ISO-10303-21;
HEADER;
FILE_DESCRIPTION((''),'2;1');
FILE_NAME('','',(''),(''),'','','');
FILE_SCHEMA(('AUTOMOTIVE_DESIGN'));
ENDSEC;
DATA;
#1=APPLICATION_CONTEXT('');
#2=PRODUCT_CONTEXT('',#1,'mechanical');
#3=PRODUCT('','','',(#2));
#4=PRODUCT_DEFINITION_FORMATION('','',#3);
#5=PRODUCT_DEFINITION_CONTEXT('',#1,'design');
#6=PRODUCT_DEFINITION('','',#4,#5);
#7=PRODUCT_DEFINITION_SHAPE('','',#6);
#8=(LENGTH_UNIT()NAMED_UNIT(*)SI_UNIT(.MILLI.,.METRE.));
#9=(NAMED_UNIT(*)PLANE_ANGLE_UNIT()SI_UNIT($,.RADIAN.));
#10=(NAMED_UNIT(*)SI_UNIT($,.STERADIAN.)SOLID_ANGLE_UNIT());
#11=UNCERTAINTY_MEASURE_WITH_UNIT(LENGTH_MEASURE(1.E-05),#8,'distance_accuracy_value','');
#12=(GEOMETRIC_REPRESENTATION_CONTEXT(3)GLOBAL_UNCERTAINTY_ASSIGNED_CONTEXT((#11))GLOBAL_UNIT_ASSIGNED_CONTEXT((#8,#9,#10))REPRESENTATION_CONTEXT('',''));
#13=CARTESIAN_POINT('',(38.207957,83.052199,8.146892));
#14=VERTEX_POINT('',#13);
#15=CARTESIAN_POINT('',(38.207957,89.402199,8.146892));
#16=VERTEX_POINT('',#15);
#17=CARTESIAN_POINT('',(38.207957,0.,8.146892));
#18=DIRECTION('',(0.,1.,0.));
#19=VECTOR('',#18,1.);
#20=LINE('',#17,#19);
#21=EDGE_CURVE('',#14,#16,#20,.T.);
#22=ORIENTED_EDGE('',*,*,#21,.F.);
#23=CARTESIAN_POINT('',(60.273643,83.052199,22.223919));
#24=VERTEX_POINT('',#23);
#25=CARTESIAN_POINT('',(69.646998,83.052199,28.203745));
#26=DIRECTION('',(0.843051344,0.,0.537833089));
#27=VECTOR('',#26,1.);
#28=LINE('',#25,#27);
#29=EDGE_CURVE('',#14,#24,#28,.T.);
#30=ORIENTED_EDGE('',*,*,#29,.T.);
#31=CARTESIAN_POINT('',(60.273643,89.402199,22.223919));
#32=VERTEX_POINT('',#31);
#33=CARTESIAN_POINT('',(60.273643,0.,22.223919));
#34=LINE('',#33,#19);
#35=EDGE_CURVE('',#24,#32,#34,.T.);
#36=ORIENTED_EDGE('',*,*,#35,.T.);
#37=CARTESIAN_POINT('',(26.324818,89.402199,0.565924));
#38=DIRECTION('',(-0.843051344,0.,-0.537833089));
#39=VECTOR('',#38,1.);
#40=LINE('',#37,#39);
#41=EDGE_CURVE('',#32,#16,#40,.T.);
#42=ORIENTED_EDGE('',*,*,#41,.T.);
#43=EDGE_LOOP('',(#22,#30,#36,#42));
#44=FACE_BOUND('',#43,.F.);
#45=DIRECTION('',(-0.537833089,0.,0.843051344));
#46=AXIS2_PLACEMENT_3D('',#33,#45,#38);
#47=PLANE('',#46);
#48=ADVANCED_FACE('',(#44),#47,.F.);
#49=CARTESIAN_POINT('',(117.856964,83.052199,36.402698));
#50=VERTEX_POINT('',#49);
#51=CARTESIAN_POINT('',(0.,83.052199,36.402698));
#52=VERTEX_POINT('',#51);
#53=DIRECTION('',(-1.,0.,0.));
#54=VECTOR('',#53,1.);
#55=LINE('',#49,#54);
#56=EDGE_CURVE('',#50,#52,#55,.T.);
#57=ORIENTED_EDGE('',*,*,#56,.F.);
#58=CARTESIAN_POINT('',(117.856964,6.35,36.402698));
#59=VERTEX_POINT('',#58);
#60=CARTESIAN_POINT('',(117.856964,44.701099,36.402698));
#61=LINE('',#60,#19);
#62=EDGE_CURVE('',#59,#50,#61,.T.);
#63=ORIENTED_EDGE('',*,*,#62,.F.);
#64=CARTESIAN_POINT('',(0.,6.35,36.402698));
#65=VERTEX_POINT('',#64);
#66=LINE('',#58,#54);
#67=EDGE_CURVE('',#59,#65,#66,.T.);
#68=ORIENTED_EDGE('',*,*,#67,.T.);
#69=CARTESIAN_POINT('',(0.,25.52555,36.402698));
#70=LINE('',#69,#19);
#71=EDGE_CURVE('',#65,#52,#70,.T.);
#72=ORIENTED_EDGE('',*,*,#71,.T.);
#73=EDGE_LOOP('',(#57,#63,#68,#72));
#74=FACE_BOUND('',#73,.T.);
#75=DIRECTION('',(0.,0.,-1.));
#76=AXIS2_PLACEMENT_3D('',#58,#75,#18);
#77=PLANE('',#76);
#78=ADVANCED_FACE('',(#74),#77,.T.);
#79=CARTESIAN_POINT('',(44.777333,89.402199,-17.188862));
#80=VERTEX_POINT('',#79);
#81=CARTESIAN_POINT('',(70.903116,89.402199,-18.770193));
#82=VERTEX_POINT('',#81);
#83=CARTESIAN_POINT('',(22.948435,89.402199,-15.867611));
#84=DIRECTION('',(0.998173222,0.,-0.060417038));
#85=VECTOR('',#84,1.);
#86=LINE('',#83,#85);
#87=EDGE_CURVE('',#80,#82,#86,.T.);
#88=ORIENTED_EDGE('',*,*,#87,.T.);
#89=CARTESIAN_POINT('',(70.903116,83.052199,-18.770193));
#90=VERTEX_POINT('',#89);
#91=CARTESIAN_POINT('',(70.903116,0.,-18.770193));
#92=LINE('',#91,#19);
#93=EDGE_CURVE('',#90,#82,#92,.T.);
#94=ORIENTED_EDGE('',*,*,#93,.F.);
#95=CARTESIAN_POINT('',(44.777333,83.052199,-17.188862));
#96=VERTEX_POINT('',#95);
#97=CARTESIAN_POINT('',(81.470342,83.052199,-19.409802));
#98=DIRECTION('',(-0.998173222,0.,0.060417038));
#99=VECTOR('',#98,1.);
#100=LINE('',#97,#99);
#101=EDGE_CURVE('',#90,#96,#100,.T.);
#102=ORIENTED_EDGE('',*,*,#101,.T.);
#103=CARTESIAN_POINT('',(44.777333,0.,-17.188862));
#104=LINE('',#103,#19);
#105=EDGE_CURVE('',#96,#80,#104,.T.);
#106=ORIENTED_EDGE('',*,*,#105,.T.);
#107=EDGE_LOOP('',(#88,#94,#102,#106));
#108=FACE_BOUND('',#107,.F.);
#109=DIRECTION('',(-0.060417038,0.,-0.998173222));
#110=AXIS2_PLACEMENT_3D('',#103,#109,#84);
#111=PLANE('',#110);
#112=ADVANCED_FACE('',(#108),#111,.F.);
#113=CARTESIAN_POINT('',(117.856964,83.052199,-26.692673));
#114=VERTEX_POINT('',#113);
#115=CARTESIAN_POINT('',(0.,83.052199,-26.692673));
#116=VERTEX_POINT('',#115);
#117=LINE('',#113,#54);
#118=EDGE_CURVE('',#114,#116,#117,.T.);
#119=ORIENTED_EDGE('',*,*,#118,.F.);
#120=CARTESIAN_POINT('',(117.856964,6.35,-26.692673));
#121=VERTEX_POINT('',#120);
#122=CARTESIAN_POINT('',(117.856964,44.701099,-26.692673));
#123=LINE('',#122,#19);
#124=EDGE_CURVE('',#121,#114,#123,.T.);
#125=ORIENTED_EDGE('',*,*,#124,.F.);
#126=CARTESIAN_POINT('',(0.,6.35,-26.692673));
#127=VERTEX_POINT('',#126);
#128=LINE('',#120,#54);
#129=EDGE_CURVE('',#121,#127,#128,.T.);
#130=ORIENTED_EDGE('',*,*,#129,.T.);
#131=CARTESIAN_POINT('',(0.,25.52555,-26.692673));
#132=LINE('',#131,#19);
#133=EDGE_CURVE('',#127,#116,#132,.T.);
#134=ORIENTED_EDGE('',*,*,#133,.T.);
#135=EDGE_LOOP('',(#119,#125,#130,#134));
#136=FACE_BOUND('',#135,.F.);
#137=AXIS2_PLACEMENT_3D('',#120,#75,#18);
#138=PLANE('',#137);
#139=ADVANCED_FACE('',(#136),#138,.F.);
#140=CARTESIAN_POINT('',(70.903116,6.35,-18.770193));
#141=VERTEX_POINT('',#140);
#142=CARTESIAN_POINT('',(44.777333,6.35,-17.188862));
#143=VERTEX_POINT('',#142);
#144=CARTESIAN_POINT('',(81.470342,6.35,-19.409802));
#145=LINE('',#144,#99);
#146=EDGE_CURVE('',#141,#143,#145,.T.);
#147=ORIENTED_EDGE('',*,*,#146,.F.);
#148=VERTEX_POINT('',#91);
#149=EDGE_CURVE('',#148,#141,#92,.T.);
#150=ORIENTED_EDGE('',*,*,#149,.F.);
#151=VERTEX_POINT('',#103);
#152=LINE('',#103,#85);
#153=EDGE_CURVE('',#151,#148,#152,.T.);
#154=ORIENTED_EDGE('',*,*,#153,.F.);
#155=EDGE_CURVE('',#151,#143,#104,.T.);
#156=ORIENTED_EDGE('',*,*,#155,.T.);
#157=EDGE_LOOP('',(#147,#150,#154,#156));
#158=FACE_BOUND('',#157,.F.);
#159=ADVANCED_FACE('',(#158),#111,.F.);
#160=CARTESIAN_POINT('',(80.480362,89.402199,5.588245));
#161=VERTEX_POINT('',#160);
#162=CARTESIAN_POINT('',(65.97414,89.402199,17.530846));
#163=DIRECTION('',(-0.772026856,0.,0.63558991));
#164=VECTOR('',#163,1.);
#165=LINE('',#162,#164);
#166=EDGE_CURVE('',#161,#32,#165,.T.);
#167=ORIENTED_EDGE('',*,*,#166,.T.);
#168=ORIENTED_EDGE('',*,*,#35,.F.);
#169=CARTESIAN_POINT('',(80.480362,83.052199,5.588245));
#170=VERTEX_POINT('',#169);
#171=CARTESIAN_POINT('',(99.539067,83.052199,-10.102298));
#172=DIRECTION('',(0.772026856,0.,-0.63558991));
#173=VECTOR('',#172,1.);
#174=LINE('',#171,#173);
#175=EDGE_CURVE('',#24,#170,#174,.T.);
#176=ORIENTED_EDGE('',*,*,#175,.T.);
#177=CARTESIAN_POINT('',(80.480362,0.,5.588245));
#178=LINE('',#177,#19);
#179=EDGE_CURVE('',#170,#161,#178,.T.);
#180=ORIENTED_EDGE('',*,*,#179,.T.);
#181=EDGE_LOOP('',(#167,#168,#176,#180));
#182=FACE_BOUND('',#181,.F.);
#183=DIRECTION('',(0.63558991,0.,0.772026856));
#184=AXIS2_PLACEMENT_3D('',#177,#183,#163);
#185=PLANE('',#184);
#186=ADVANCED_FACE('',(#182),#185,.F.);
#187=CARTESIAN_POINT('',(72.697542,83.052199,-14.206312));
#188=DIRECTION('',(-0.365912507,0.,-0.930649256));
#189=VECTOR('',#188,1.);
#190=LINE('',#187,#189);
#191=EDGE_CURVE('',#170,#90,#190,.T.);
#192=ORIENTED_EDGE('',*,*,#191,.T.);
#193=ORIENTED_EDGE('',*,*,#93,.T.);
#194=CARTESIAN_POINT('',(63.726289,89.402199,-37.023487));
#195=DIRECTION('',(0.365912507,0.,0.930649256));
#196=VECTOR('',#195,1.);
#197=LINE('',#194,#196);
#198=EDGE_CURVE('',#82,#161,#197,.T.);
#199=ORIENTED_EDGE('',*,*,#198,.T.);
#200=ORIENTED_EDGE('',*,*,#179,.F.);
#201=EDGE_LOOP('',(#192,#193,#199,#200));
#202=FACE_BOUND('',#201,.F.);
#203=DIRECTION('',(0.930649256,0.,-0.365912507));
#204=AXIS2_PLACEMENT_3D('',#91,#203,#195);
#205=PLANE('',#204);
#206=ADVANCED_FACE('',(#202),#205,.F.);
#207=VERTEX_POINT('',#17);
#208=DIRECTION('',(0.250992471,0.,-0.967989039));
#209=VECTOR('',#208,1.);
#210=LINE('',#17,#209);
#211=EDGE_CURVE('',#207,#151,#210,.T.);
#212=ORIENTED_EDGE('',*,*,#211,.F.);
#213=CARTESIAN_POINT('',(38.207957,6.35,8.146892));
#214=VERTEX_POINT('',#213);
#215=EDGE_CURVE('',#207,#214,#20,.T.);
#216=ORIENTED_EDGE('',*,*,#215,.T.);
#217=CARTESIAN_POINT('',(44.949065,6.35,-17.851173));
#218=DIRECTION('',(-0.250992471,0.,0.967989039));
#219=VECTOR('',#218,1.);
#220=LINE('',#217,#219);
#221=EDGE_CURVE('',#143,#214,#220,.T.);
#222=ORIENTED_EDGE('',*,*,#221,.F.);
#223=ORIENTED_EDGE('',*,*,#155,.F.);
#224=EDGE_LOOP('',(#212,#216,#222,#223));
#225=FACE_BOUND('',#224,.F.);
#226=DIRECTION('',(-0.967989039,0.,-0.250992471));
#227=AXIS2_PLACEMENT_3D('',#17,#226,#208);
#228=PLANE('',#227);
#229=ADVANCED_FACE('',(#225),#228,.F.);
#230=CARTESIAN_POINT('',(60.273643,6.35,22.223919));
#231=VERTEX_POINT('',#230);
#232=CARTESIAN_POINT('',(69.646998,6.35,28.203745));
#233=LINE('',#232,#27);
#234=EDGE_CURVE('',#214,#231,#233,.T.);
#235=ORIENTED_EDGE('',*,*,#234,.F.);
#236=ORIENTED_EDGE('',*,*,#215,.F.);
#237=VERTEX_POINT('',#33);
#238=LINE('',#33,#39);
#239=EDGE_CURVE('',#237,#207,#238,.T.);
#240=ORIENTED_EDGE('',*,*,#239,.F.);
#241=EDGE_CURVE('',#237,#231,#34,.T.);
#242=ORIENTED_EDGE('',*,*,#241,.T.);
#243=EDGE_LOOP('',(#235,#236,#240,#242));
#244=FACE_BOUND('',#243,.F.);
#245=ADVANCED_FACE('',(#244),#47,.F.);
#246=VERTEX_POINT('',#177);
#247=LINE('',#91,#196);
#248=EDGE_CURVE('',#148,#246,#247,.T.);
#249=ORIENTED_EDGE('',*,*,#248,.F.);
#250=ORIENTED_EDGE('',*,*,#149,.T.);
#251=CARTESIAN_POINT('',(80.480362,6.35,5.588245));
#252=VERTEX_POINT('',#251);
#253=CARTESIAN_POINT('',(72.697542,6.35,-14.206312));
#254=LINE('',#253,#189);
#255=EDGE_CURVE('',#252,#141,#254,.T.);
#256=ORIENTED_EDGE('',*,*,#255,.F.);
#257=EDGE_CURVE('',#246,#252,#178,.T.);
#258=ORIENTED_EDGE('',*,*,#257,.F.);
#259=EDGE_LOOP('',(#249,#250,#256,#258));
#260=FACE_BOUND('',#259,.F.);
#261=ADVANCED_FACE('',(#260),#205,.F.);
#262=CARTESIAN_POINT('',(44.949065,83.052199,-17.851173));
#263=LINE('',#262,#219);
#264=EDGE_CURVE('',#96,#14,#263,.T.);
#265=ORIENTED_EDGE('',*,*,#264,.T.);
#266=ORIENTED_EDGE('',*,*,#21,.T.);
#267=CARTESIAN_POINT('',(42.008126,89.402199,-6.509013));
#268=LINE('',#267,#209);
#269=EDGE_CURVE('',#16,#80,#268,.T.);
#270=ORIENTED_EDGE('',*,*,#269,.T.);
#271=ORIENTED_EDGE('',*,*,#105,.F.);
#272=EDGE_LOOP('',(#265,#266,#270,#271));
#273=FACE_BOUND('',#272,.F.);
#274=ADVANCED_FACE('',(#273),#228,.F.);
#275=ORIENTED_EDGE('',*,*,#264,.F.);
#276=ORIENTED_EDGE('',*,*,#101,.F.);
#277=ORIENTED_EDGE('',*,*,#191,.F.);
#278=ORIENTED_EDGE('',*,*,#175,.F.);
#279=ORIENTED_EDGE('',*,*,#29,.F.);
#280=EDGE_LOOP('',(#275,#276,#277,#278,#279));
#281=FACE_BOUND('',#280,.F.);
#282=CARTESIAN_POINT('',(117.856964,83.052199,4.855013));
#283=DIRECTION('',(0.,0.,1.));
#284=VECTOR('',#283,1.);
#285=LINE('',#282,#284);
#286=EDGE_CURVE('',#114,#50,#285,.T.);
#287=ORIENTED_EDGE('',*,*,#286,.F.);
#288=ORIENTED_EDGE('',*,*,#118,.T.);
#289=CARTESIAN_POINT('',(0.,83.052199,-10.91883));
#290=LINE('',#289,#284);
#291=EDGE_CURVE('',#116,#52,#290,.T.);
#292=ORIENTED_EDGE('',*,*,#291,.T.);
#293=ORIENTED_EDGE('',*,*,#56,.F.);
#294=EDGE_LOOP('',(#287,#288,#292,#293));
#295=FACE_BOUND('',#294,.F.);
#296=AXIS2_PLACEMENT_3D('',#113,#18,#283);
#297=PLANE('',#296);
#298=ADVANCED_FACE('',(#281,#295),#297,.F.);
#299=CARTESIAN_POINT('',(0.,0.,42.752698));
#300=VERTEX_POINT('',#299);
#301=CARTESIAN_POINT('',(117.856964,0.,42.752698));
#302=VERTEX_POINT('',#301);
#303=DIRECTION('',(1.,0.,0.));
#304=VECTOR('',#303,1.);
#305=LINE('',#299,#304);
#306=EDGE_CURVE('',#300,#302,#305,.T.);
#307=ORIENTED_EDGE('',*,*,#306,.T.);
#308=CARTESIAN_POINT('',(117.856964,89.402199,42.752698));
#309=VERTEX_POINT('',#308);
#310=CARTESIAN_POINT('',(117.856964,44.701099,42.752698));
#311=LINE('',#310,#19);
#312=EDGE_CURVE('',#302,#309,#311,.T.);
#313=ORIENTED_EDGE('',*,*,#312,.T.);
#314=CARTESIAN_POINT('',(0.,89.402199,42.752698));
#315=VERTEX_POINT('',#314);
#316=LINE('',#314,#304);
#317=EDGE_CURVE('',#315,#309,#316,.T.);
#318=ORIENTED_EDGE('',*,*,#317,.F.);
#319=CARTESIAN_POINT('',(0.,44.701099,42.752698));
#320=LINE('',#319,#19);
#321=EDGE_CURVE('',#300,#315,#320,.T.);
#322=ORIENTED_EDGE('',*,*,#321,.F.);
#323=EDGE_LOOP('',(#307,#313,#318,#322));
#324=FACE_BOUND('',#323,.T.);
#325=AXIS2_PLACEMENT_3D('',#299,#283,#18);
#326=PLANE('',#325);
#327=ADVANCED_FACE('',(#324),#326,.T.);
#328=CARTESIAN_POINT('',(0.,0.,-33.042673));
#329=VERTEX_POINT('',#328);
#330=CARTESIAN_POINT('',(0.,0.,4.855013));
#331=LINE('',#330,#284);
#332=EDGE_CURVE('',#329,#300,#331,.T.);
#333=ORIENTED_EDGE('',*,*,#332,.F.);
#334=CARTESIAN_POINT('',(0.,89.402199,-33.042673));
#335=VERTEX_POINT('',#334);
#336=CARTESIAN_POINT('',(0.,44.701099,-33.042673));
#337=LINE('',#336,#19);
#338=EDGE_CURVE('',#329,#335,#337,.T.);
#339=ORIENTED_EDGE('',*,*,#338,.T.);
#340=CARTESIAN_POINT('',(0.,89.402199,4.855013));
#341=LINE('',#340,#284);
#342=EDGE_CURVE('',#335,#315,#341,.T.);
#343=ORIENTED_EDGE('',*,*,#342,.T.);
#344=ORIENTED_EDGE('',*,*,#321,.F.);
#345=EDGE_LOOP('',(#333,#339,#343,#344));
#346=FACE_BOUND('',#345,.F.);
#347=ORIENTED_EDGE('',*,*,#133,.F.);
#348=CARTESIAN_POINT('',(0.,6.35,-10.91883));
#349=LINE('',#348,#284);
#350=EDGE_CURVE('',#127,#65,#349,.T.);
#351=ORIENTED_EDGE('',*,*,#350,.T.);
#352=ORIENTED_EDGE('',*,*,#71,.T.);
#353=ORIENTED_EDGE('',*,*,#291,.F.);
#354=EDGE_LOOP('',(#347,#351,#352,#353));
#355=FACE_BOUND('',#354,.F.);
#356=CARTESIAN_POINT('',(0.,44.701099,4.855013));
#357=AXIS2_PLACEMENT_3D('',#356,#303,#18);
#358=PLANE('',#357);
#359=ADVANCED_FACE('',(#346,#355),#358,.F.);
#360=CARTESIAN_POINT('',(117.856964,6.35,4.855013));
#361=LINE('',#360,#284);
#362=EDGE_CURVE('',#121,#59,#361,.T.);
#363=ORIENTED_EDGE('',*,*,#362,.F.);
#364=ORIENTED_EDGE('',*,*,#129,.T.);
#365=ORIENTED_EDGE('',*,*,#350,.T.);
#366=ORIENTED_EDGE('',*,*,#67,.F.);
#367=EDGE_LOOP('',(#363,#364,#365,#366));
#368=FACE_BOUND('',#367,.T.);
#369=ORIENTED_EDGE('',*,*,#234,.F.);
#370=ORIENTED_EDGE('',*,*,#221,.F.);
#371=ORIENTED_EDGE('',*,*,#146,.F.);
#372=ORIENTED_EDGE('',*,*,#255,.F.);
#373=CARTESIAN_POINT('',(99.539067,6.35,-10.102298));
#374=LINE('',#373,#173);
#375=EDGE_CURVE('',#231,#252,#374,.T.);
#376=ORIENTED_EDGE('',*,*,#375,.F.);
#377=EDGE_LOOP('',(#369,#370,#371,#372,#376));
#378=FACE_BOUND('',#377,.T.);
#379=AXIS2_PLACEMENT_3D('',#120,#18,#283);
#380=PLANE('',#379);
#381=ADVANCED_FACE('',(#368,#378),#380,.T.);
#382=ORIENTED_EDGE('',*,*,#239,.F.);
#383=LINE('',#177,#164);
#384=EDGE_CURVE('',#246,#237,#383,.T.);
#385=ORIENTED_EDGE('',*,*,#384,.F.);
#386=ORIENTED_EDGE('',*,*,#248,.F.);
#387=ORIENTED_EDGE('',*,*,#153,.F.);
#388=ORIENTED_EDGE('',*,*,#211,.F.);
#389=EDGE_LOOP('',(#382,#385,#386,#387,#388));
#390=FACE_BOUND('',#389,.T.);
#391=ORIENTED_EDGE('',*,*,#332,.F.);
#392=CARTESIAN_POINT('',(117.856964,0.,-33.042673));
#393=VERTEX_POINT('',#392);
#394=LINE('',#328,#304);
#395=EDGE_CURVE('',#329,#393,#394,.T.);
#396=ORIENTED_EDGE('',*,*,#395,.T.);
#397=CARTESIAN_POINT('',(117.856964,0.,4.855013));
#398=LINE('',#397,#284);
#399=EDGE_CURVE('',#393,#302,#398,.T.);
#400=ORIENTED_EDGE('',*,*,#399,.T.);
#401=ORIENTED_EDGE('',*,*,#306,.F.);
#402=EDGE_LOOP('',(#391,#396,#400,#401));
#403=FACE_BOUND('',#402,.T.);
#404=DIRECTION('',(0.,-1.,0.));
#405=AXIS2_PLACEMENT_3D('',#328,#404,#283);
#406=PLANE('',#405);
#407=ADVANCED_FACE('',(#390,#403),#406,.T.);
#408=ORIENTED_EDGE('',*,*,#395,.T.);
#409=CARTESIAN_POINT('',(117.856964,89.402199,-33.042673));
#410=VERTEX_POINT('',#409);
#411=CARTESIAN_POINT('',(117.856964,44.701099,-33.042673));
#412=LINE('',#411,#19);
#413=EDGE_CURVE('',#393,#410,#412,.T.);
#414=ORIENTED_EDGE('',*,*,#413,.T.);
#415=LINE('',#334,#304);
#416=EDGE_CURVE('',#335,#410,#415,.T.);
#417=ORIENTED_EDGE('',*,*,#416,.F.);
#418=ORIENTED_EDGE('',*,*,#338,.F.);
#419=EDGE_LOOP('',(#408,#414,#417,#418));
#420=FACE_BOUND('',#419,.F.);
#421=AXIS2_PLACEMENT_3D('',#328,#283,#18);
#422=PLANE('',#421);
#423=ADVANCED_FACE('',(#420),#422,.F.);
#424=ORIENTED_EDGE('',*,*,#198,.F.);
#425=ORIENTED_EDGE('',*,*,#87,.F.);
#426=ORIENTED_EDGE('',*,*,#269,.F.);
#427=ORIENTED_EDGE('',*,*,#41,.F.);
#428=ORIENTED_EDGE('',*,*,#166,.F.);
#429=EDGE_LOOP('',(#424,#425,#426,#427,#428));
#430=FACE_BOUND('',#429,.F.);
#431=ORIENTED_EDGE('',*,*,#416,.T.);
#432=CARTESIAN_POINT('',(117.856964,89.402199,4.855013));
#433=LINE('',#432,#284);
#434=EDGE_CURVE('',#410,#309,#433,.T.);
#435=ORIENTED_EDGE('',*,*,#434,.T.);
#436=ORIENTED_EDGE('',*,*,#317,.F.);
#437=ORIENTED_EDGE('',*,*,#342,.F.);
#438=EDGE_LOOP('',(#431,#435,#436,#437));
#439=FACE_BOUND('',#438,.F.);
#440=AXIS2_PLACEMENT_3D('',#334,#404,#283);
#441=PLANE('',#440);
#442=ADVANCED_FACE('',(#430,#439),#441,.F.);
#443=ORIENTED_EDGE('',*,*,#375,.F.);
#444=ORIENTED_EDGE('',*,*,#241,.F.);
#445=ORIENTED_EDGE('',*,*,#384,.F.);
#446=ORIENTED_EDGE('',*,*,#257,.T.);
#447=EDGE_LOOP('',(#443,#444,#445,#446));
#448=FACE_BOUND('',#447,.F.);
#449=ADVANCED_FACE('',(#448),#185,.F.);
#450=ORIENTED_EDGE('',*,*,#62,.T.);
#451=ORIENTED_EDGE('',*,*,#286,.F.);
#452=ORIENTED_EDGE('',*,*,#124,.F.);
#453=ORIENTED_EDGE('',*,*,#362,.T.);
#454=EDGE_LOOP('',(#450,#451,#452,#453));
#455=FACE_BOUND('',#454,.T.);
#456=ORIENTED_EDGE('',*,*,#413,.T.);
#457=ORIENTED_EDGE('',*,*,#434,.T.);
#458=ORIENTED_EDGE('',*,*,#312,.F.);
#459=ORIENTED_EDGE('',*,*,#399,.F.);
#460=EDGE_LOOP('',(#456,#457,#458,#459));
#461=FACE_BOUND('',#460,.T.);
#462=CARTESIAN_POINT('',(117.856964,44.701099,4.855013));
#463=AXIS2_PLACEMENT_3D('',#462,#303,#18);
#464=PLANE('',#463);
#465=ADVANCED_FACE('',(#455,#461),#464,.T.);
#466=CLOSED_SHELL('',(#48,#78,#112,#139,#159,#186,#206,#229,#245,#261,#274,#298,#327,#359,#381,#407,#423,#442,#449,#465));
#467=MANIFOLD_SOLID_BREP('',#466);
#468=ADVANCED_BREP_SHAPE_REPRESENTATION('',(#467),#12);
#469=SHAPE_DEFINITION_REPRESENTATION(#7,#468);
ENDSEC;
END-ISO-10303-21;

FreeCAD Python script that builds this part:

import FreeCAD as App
import Part
import Sketcher
from FreeCAD import Vector

doc = App.newDocument("Part")
body = doc.addObject("PartDesign::Body", "Body")

# Sketch on YZ plane
sketch1 = doc.addObject("Sketcher::SketchObject", "Sketch")
body.addObject(sketch1)
sketch1.AttachmentSupport = (doc.YZ_Plane, [""])
sketch1.MapMode = "FlatFace"
sketch1.addGeometry([
    Part.LineSegment(Vector(0, 43, 0), Vector(0, -33, 0)),
    Part.LineSegment(Vector(0, -33, 0), Vector(89, -33, 0)),
    Part.LineSegment(Vector(89, -33, 0), Vector(89, 43, 0)),
    Part.LineSegment(Vector(89, 43, 0), Vector(0, 43, 0)),
], False)
sketch1.addConstraint([
    Sketcher.Constraint("Coincident", 0, 2, 1, 1),
    Sketcher.Constraint("Coincident", 1, 2, 2, 1),
    Sketcher.Constraint("Coincident", 2, 2, 3, 1),
    Sketcher.Constraint("Coincident", 3, 2, 0, 1),
    Sketcher.Constraint("Vertical", 0),
    Sketcher.Constraint("Horizontal", 1),
    Sketcher.Constraint("Vertical", 2),
    Sketcher.Constraint("Horizontal", 3),
    Sketcher.Constraint("PointOnObject", 0, 2, -2),
    Sketcher.Constraint("DistanceX", 1, 1, 1, 2, 89.402199),
    Sketcher.Constraint("DistanceY", 0, 2, 0, 1, 75.795371),
    Sketcher.Constraint("DistanceY", -1, 1, 2, 2, 42.752698),
])
pad1 = doc.addObject("PartDesign::Pad", "Pad")
body.addObject(pad1)
pad1.Profile = sketch1
pad1.Length = 117.856964

# Sketch on YZ plane
sketch2 = doc.addObject("Sketcher::SketchObject", "Sketch001")
body.addObject(sketch2)
sketch2.AttachmentSupport = (doc.YZ_Plane, [""])
sketch2.MapMode = "FlatFace"
sketch2.AttachmentOffset = App.Placement(Vector(0, 0, 117.856964), App.Rotation())
sketch2.addGeometry([
    Part.LineSegment(Vector(6, 36, 0), Vector(6, -27, 0)),
    Part.LineSegment(Vector(6, -27, 0), Vector(83, -27, 0)),
    Part.LineSegment(Vector(83, -27, 0), Vector(83, 36, 0)),
    Part.LineSegment(Vector(83, 36, 0), Vector(6, 36, 0)),
], False)
sketch2.addConstraint([
    Sketcher.Constraint("Coincident", 0, 2, 1, 1),
    Sketcher.Constraint("Coincident", 1, 2, 2, 1),
    Sketcher.Constraint("Coincident", 2, 2, 3, 1),
    Sketcher.Constraint("Coincident", 3, 2, 0, 1),
    Sketcher.Constraint("Vertical", 0),
    Sketcher.Constraint("Horizontal", 1),
    Sketcher.Constraint("Vertical", 2),
    Sketcher.Constraint("Horizontal", 3),
    Sketcher.Constraint("DistanceX", -1, 1, 0, 2, 6.35),
    Sketcher.Constraint("DistanceX", 1, 1, 1, 2, 76.702199),
    Sketcher.Constraint("DistanceY", 0, 2, 0, 1, 63.095371),
    Sketcher.Constraint("DistanceY", -1, 1, 2, 2, 36.402698),
])
pocket1 = doc.addObject("PartDesign::Pocket", "Pocket")
body.addObject(pocket1)
pocket1.Profile = sketch2
pocket1.Length = 168.547364

# Sketch on XZ plane
sketch3 = doc.addObject("Sketcher::SketchObject", "Sketch002")
body.addObject(sketch3)
sketch3.AttachmentSupport = (doc.XZ_Plane, [""])
sketch3.MapMode = "FlatFace"
sketch3.addGeometry([
    Part.LineSegment(Vector(71, -19, 0), Vector(80, 6, 0)),  # 0
    Part.LineSegment(Vector(80, 6, 0), Vector(60, 22, 0)),  # 1
    Part.LineSegment(Vector(60, 22, 0), Vector(38, 8, 0)),  # 2
    Part.LineSegment(Vector(38, 8, 0), Vector(45, -17, 0)),  # 3
    Part.LineSegment(Vector(45, -17, 0), Vector(71, -19, 0)),  # 4
], False)
sketch3.addConstraint([
    Sketcher.Constraint("Coincident", 0, 2, 1, 1),
    Sketcher.Constraint("Coincident", 1, 2, 2, 1),
    Sketcher.Constraint("Coincident", 2, 2, 3, 1),
    Sketcher.Constraint("Coincident", 3, 2, 4, 1),
    Sketcher.Constraint("Coincident", 4, 2, 0, 1),
    Sketcher.Constraint("Equal", 0, 1),
    Sketcher.Constraint("Equal", 1, 2),
    Sketcher.Constraint("Equal", 2, 3),
    Sketcher.Constraint("Equal", 3, 4),
    Sketcher.Constraint("DistanceY", -1, 1, 1, 2, 22.223919),
    Sketcher.Constraint("DistanceX", 1, 2, 0, 2, 20.206719),
    Sketcher.Constraint("DistanceX", 3, 2, 1, 2, 15.49631),
    Sketcher.Constraint("DistanceY", 3, 2, 1, 2, 39.412781),
    Sketcher.Constraint("DistanceY", 4, 2, 3, 2, 1.581331),
    Sketcher.Constraint("DistanceX", -1, 1, 0, 2, 80.480362),
])
pocket2 = doc.addObject("PartDesign::Pocket", "Pocket001")
body.addObject(pocket2)
pocket2.Profile = sketch3
pocket2.Length = 108.432623

doc.recompute()
